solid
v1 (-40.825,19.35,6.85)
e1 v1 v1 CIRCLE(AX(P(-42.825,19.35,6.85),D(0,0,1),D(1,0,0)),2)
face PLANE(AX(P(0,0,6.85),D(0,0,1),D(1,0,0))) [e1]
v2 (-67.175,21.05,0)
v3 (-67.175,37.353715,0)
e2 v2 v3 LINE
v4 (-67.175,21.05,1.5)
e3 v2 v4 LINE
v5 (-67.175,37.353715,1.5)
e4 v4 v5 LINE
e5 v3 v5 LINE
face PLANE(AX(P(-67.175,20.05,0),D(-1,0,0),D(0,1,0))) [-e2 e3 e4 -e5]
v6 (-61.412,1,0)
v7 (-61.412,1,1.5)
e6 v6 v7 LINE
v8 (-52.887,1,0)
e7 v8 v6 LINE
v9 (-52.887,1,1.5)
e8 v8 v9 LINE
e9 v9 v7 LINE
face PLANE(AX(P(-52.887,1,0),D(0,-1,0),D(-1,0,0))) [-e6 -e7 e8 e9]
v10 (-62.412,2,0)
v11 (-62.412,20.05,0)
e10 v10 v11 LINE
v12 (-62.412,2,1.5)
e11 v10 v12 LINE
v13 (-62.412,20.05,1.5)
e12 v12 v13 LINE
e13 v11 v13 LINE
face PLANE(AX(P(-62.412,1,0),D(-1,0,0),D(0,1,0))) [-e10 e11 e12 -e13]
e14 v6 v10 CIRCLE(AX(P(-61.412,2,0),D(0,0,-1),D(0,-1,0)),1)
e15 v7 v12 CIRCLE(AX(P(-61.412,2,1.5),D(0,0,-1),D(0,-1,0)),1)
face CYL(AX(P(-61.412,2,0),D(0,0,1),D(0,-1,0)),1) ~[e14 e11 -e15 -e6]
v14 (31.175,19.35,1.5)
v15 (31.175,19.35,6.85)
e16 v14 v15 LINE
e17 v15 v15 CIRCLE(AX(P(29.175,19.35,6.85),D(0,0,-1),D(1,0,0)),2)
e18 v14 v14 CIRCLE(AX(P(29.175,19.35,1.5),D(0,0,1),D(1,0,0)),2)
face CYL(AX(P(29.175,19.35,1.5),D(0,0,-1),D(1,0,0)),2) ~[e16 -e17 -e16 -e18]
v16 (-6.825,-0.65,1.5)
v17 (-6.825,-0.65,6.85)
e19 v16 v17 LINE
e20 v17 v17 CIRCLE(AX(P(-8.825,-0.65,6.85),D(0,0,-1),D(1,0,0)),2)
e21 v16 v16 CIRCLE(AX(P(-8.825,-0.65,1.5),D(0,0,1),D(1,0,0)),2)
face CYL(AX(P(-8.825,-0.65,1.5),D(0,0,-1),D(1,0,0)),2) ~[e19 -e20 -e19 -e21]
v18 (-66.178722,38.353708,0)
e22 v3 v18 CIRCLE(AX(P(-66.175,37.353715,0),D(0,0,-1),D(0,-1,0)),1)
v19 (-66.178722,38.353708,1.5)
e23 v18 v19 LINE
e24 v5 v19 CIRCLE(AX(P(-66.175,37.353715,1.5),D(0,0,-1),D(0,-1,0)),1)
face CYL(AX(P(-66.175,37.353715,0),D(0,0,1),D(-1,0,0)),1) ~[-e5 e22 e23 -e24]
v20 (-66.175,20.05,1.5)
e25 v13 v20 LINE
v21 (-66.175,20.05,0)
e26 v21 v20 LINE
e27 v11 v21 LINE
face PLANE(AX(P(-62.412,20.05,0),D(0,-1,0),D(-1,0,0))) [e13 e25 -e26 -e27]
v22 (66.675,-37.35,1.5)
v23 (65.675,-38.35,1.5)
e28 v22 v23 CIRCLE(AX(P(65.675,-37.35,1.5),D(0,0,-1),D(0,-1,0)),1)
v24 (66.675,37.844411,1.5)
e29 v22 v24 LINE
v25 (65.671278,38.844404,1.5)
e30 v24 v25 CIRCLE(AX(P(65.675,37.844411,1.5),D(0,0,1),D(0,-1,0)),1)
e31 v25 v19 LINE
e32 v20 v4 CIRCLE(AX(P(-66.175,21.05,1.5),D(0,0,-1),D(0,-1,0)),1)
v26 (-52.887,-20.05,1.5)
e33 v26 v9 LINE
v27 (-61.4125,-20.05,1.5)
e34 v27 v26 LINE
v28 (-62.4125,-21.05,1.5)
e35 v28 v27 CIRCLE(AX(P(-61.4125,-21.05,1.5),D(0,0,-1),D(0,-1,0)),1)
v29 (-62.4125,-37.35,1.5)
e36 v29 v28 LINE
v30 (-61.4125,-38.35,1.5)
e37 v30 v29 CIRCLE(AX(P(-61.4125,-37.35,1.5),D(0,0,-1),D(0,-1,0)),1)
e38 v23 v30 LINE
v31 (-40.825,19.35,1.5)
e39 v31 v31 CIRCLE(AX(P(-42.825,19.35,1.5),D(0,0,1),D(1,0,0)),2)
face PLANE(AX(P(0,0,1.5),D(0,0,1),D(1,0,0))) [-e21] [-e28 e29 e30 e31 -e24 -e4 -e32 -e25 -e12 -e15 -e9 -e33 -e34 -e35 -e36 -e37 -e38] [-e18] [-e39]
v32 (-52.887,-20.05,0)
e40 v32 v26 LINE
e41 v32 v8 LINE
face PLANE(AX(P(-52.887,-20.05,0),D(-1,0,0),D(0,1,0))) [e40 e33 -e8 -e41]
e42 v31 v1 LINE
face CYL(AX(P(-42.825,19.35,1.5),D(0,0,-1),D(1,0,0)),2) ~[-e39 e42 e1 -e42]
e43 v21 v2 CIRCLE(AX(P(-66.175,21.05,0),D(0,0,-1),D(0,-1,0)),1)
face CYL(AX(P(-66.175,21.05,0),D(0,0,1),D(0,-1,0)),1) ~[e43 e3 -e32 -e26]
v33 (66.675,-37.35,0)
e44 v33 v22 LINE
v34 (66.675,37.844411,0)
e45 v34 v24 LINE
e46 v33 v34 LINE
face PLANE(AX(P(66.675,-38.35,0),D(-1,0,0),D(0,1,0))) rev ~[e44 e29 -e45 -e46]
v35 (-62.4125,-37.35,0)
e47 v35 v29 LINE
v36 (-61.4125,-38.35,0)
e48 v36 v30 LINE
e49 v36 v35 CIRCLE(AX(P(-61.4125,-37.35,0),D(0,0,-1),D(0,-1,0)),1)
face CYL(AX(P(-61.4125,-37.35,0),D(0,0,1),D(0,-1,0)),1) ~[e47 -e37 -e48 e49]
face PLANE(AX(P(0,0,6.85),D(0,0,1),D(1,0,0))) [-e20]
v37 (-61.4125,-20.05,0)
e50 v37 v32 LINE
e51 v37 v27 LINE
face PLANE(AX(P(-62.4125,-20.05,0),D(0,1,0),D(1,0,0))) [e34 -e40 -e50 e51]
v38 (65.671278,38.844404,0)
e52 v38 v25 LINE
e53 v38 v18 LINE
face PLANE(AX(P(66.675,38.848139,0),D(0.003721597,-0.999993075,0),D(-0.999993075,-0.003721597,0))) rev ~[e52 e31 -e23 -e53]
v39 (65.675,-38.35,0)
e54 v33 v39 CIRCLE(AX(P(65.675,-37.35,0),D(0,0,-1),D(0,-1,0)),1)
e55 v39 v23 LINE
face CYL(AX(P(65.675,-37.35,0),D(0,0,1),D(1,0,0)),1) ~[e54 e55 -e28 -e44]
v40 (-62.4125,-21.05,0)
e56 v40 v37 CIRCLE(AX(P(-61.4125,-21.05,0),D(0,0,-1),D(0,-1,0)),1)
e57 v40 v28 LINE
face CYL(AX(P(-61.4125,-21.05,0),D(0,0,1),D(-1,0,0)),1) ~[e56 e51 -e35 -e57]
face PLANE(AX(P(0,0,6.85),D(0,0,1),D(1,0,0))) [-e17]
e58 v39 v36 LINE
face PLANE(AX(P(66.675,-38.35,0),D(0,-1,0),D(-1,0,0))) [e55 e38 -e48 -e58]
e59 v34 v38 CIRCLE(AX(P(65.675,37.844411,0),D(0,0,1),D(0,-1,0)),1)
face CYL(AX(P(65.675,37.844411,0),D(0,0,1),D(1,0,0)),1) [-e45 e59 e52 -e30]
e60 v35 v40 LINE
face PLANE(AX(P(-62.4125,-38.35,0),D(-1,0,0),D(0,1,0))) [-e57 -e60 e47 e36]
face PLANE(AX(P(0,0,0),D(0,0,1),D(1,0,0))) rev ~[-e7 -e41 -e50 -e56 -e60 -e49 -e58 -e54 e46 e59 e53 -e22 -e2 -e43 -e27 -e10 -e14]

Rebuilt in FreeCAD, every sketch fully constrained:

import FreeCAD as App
import Part
import Sketcher
from FreeCAD import Vector
Q = App.Units.Quantity


def edges_at(feature, points):
    """Names of the edges that pass closest to the given points."""
    edges = feature.Shape.Edges
    near = lambda p: min(range(len(edges)), key=lambda i: edges[i].distToShape(Part.Vertex(*p))[0])
    return sorted({f"Edge{near(p) + 1}" for p in points})

doc = App.newDocument("Part")
params = doc.addObject("Spreadsheet::Sheet", "Params")
for row, (alias, value) in enumerate([
    ("sketch1_height", "18.3 mm"),
    ("sketch1_height2", "19.05 mm"),
    ("sketch1_height3", "21.05 mm"),
    ("pad1_length", "1.5 mm"),
    ("fillet_radius", "1 mm"),
    ("sketch2_diameter", "4 mm"),
    ("pad2_length", "5.35 mm"),
], start=1):
    params.set(f"A{row}", alias)
    params.set(f"B{row}", "=" + value)
    params.setAlias(f"B{row}", alias)

body = doc.addObject("PartDesign::Body", "Body")

# Sketch on XY plane
sketch1 = body.newObject("Sketcher::SketchObject", "Sketch")
sketch1.AttachmentSupport = (doc.getObject("XY_Plane"), [""])
sketch1.MapMode = "FlatFace"
sketch1.addGeometry([
    Part.LineSegment(Vector(66.7, -38.4, 0), Vector(66.7, 38.8, 0)),  # 0
    Part.LineSegment(Vector(66.7, 38.8, 0), Vector(-67.2, 38.4, 0)),  # 1
    Part.LineSegment(Vector(-67.2, 38.4, 0), Vector(-67.2, 20.1, 0)),  # 2
    Part.LineSegment(Vector(-67.2, 20.1, 0), Vector(-62.4, 20.1, 0)),  # 3
    Part.LineSegment(Vector(-62.4, 20.1, 0), Vector(-62.4, 1, 0)),  # 4
    Part.LineSegment(Vector(-62.4, 1, 0), Vector(-52.9, 1, 0)),  # 5
    Part.LineSegment(Vector(-52.9, 1, 0), Vector(-52.9, -20.1, 0)),  # 6
    Part.LineSegment(Vector(-52.9, -20.1, 0), Vector(-62.4, -20.1, 0)),  # 7
    Part.LineSegment(Vector(-62.4, -20.1, 0), Vector(-62.4, -38.4, 0)),  # 8
    Part.LineSegment(Vector(-62.4, -38.4, 0), Vector(66.7, -38.4, 0)),  # 9
], False)
sketch1.addConstraint([
    Sketcher.Constraint("Coincident", 0, 2, 1, 1),
    Sketcher.Constraint("Coincident", 1, 2, 2, 1),
    Sketcher.Constraint("Coincident", 2, 2, 3, 1),
    Sketcher.Constraint("Coincident", 3, 2, 4, 1),
    Sketcher.Constraint("Coincident", 4, 2, 5, 1),
    Sketcher.Constraint("Coincident", 5, 2, 6, 1),
    Sketcher.Constraint("Coincident", 6, 2, 7, 1),
    Sketcher.Constraint("Coincident", 7, 2, 8, 1),
    Sketcher.Constraint("Coincident", 8, 2, 9, 1),
    Sketcher.Constraint("Coincident", 9, 2, 0, 1),
    Sketcher.Constraint("Vertical", 0),
    Sketcher.Constraint("Vertical", 2),
    Sketcher.Constraint("Horizontal", 3),
    Sketcher.Constraint("Vertical", 4),
    Sketcher.Constraint("Horizontal", 5),
    Sketcher.Constraint("Vertical", 6),
    Sketcher.Constraint("Horizontal", 7),
    Sketcher.Constraint("Vertical", 8),
    Sketcher.Constraint("Horizontal", 9),
    Sketcher.Constraint("Equal", 2, 8),
    Sketcher.Constraint("DistanceY", -1, 1, 4, 2, Q("1 mm")),
    Sketcher.Constraint("DistanceY", 2, 2, 2, 1, Q("18.3 mm")),
    Sketcher.Constraint("DistanceY", 4, 2, 4, 1, Q("19.05 mm")),
    Sketcher.Constraint("DistanceY", 6, 2, 6, 1, Q("21.05 mm")),
    Sketcher.Constraint("DistanceX", 3, 1, 3, 2, Q("4.763 mm")),
    Sketcher.Constraint("DistanceX", 5, 1, 5, 2, Q("9.525 mm")),
    Sketcher.Constraint("DistanceX", 1, 2, 0, 2, Q("133.85 mm")),
    Sketcher.Constraint("DistanceX", 7, 2, 7, 1, Q("9.5255 mm")),
    Sketcher.Constraint("DistanceY", 0, 1, 0, 2, Q("77.1981 mm")),
    Sketcher.Constraint("DistanceX", -1, 1, 0, 2, Q("66.675 mm")),
])
sketch1.setExpression("Constraints[21]", "Params.sketch1_height")
sketch1.setExpression("Constraints[22]", "Params.sketch1_height2")
sketch1.setExpression("Constraints[23]", "Params.sketch1_height3")
pad1 = body.newObject("PartDesign::Pad", "Pad")
pad1.Profile = sketch1
pad1.setExpression("Length", "Params.pad1_length")
doc.recompute()

fillet = body.newObject("PartDesign::Fillet", "Fillet")
fillet.Base = (pad1, edges_at(pad1, [
    (-67.175, 38.35, 0.75),
    (-67.175, 20.05, 0.75),
    (-62.412, 1, 0.75),
    (-62.413, -20.05, 0.75),
    (-62.413, -38.35, 0.75),
    (66.675, 38.848, 0.75),
    (66.675, -38.35, 0.75),
]))
fillet.setExpression("Radius", "Params.fillet_radius")

# Sketch on XY plane
sketch2 = body.newObject("Sketcher::SketchObject", "Sketch001")
sketch2.AttachmentSupport = (doc.getObject("XY_Plane"), [""])
sketch2.MapMode = "FlatFace"
sketch2.AttachmentOffset = App.Placement(Vector(0, 0, 1.5), App.Rotation())
sketch2.addGeometry([
    Part.Circle(Vector(-8.8, -0.7, 0), Vector(0, 0, 1), 2),
    Part.Circle(Vector(-42.8, 19.4, 0), Vector(0, 0, 1), 2),
    Part.Circle(Vector(29.2, 19.4, 0), Vector(0, 0, 1), 2),
], False)
sketch2.addConstraint([
    Sketcher.Constraint("Equal", 0, 1),
    Sketcher.Constraint("Equal", 1, 2),
    Sketcher.Constraint("Horizontal", 1, 3, 2, 3),
    Sketcher.Constraint("Diameter", 0, Q("4 mm")),
    Sketcher.Constraint("DistanceY", 0, 3, 1, 3, Q("20 mm")),
    Sketcher.Constraint("DistanceX", 0, 3, 2, 3, Q("38 mm")),
    Sketcher.Constraint("DistanceX", 1, 3, 2, 3, Q("72 mm")),
    Sketcher.Constraint("DistanceY", 0, 3, -1, 1, Q("0.65 mm")),
    Sketcher.Constraint("DistanceX", 0, 3, -1, 1, Q("8.825 mm")),
])
sketch2.setExpression("Constraints[3]", "Params.sketch2_diameter")
pad2 = body.newObject("PartDesign::Pad", "Pad001")
pad2.Profile = sketch2
pad2.setExpression("Length", "Params.pad2_length")

doc.recompute()
